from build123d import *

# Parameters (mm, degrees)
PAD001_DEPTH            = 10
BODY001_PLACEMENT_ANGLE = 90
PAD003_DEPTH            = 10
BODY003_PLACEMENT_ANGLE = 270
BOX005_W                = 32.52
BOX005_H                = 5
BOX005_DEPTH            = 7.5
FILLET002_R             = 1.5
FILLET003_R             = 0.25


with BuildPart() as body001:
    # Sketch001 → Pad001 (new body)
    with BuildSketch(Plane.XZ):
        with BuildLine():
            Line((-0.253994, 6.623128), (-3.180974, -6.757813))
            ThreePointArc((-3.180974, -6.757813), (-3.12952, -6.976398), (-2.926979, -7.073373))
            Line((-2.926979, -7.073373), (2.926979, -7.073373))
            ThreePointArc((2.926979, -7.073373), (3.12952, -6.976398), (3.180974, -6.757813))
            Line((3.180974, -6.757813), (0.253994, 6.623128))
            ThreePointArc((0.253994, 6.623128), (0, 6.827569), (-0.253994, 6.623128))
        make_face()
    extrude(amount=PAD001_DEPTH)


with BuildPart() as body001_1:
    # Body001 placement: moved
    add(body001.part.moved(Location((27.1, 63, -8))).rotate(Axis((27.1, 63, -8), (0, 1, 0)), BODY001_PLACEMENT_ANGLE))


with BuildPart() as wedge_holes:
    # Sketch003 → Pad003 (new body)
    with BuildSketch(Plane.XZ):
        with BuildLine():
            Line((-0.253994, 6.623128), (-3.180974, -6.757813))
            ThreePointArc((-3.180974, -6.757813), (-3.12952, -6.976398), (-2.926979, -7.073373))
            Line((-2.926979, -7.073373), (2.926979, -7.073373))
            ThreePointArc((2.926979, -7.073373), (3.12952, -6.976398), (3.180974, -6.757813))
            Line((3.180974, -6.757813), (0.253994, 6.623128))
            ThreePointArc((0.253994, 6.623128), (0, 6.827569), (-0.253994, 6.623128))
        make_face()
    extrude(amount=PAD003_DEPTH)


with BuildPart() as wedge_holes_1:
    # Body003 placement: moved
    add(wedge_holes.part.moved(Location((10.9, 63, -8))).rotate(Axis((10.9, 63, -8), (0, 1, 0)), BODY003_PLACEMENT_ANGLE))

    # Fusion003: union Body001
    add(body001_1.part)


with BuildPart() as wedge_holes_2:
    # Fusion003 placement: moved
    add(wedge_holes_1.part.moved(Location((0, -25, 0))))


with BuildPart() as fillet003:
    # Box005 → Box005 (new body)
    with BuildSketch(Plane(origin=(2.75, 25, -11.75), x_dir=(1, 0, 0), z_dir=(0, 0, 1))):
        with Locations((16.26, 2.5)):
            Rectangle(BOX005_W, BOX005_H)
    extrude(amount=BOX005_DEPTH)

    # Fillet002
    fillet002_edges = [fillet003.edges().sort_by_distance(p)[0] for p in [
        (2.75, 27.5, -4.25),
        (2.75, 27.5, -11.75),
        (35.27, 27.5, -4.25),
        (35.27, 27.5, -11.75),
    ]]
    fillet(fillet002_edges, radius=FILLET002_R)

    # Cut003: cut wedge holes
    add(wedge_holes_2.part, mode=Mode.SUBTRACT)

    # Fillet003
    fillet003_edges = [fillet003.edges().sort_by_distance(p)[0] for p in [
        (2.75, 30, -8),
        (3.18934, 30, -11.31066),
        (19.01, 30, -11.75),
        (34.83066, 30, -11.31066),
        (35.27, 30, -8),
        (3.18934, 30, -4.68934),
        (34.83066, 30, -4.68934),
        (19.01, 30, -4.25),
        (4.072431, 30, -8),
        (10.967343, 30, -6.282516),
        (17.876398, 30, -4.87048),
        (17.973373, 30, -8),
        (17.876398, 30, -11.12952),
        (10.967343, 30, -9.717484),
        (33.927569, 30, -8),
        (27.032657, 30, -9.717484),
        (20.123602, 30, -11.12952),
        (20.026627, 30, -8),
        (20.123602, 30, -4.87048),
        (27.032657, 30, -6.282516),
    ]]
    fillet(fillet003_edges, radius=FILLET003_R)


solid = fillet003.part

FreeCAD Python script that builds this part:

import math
import FreeCAD as App
import Part
import Sketcher

V = App.Vector
Q = App.Units.Quantity


def edges_at(feature, points):
    """Names of the edges that pass closest to the given points."""
    edges = feature.Shape.Edges
    near = lambda p: min(range(len(edges)), key=lambda i: edges[i].distToShape(Part.Vertex(*p))[0])
    return sorted({f"Edge{near(p) + 1}" for p in points})

doc = App.newDocument("Part")
body = doc.addObject("PartDesign::Body", "Body")

# Sketch on XZ plane
sketch1 = body.newObject("Sketcher::SketchObject", "Sketch")
sketch1.AttachmentSupport = (doc.getObject("XZ_Plane"), [""])
sketch1.MapMode = "FlatFace"
sketch1.addGeometry(Part.LineSegment(V(-0.25, 6.62, 0), V(-3.18, -6.76, 0)), False)
sketch1.addGeometry(Part.ArcOfCircle(Part.Circle(V(-2.93, -6.81, 0), V(0, 0, 1), 0.26), math.radians(168), math.radians(270)), False)
sketch1.addGeometry(Part.LineSegment(V(-2.93, -7.07, 0), V(2.93, -7.07, 0)), False)
sketch1.addGeometry(Part.ArcOfCircle(Part.Circle(V(2.93, -6.81, 0), V(0, 0, 1), 0.26), math.radians(-90), math.radians(12)), False)
sketch1.addGeometry(Part.LineSegment(V(3.18, -6.76, 0), V(0.25, 6.62, 0)), False)
sketch1.addGeometry(Part.ArcOfCircle(Part.Circle(V(0, 6.57, 0), V(0, 0, 1), 0.26), math.radians(12), math.radians(168)), False)
sketch1.addConstraint(Sketcher.Constraint("Tangent", 0, 2, 1, 1))
sketch1.addConstraint(Sketcher.Constraint("Tangent", 1, 2, 2, 1))
sketch1.addConstraint(Sketcher.Constraint("Tangent", 2, 2, 3, 1))
sketch1.addConstraint(Sketcher.Constraint("Tangent", 3, 2, 4, 1))
sketch1.addConstraint(Sketcher.Constraint("Coincident", 4, 2, 5, 1))
sketch1.addConstraint(Sketcher.Constraint("Coincident", 5, 2, 0, 1))
sketch1.addConstraint(Sketcher.Constraint("Horizontal", 2))
sketch1.addConstraint(Sketcher.Constraint("Equal", 1, 3))
sketch1.addConstraint(Sketcher.Constraint("Equal", 3, 5))
sketch1.addConstraint(Sketcher.Constraint("Symmetric", 0, 2, 3, 2, -2))
sketch1.addConstraint(Sketcher.Constraint("Horizontal", 4, 2, 5, 2))
sketch1.addConstraint(Sketcher.Constraint("Radius", 1, Q("0.260001 mm")))
sketch1.addConstraint(Sketcher.Constraint("DistanceX", 2, 1, 2, 2, Q("5.853958 mm")))
sketch1.addConstraint(Sketcher.Constraint("DistanceY", 3, 3, 4, 2, Q("13.4365 mm")))
sketch1.addConstraint(Sketcher.Constraint("DistanceY", -1, 1, 5, 3, Q("6.56757 mm")))
sketch1.addConstraint(Sketcher.Constraint("DistanceY", -1, 1, 4, 2, Q("6.623128 mm")))
pad1 = body.newObject("PartDesign::Pad", "Pad")
pad1.Profile = sketch1
pad1.Length = 10
body2 = doc.addObject("PartDesign::Body", "Body001")
doc.recompute()

body.Placement = App.Placement(V(27.1, 63, -8), App.Rotation(V(0, 1, 0), 90))
boolean = body2.newObject("PartDesign::Boolean", "Boolean")
boolean.Type = "Fuse"
boolean.addObjects([body])
body3 = doc.addObject("PartDesign::Body", "Body002")

# Sketch on XZ plane
sketch2 = body3.newObject("Sketcher::SketchObject", "Sketch001")
sketch2.AttachmentSupport = (doc.getObject("XZ_Plane002"), [""])
sketch2.MapMode = "FlatFace"
sketch2.addGeometry(Part.LineSegment(V(-0.25, 6.62, 0), V(-3.18, -6.76, 0)), False)
sketch2.addGeometry(Part.ArcOfCircle(Part.Circle(V(-2.93, -6.81, 0), V(0, 0, 1), 0.26), math.radians(168), math.radians(270)), False)
sketch2.addGeometry(Part.LineSegment(V(-2.93, -7.07, 0), V(2.93, -7.07, 0)), False)
sketch2.addGeometry(Part.ArcOfCircle(Part.Circle(V(2.93, -6.81, 0), V(0, 0, 1), 0.26), math.radians(-90), math.radians(12)), False)
sketch2.addGeometry(Part.LineSegment(V(3.18, -6.76, 0), V(0.25, 6.62, 0)), False)
sketch2.addGeometry(Part.ArcOfCircle(Part.Circle(V(0, 6.57, 0), V(0, 0, 1), 0.26), math.radians(12), math.radians(168)), False)
sketch2.addConstraint(Sketcher.Constraint("Tangent", 0, 2, 1, 1))
sketch2.addConstraint(Sketcher.Constraint("Tangent", 1, 2, 2, 1))
sketch2.addConstraint(Sketcher.Constraint("Tangent", 2, 2, 3, 1))
sketch2.addConstraint(Sketcher.Constraint("Tangent", 3, 2, 4, 1))
sketch2.addConstraint(Sketcher.Constraint("Coincident", 4, 2, 5, 1))
sketch2.addConstraint(Sketcher.Constraint("Coincident", 5, 2, 0, 1))
sketch2.addConstraint(Sketcher.Constraint("Horizontal", 2))
sketch2.addConstraint(Sketcher.Constraint("Equal", 1, 3))
sketch2.addConstraint(Sketcher.Constraint("Equal", 3, 5))
sketch2.addConstraint(Sketcher.Constraint("Symmetric", 0, 2, 3, 2, -2))
sketch2.addConstraint(Sketcher.Constraint("Horizontal", 4, 2, 5, 2))
sketch2.addConstraint(Sketcher.Constraint("Radius", 1, Q("0.260001 mm")))
sketch2.addConstraint(Sketcher.Constraint("DistanceX", 2, 1, 2, 2, Q("5.853958 mm")))
sketch2.addConstraint(Sketcher.Constraint("DistanceY", 3, 3, 4, 2, Q("13.4365 mm")))
sketch2.addConstraint(Sketcher.Constraint("DistanceY", -1, 1, 5, 3, Q("6.56757 mm")))
sketch2.addConstraint(Sketcher.Constraint("DistanceY", -1, 1, 4, 2, Q("6.623128 mm")))
pad2 = body3.newObject("PartDesign::Pad", "Pad001")
pad2.Profile = sketch2
pad2.Length = 10
body4 = doc.addObject("PartDesign::Body", "Body003")
body4.AllowCompound = True
doc.recompute()

body3.Placement = App.Placement(V(10.9, 63, -8), App.Rotation(V(0, 1, 0), 270))
boolean2 = body4.newObject("PartDesign::Boolean", "Boolean001")
boolean2.Type = "Fuse"
boolean2.addObjects([body3])
doc.recompute()

boolean3 = body4.newObject("PartDesign::Boolean", "Boolean002")
boolean3.Type = "Fuse"
boolean3.addObjects([body2])
body5 = doc.addObject("PartDesign::Body", "Body004")
body5.AllowCompound = True
doc.recompute()

body4.Placement = App.Placement(V(0, -25, 0), App.Rotation(V(0, 0, 1), 0))
boolean4 = body5.newObject("PartDesign::Boolean", "Boolean003")
boolean4.Type = "Fuse"
boolean4.addObjects([body4])
body6 = doc.addObject("PartDesign::Body", "Body005")

# Sketch on XY plane
sketch3 = body6.newObject("Sketcher::SketchObject", "Sketch002")
sketch3.AttachmentSupport = (doc.getObject("XY_Plane005"), [""])
sketch3.MapMode = "FlatFace"
sketch3.AttachmentOffset = App.Placement(V(0, 0, -11.75), App.Rotation())
sketch3.addGeometry(Part.LineSegment(V(3, 30, 0), V(3, 25, 0)), False)
sketch3.addGeometry(Part.LineSegment(V(3, 25, 0), V(35, 25, 0)), False)
sketch3.addGeometry(Part.LineSegment(V(35, 25, 0), V(35, 30, 0)), False)
sketch3.addGeometry(Part.LineSegment(V(35, 30, 0), V(3, 30, 0)), False)
sketch3.addConstraint(Sketcher.Constraint("Coincident", 0, 2, 1, 1))
sketch3.addConstraint(Sketcher.Constraint("Coincident", 1, 2, 2, 1))
sketch3.addConstraint(Sketcher.Constraint("Coincident", 2, 2, 3, 1))
sketch3.addConstraint(Sketcher.Constraint("Coincident", 3, 2, 0, 1))
sketch3.addConstraint(Sketcher.Constraint("Vertical", 0))
sketch3.addConstraint(Sketcher.Constraint("Horizontal", 1))
sketch3.addConstraint(Sketcher.Constraint("Vertical", 2))
sketch3.addConstraint(Sketcher.Constraint("Horizontal", 3))
sketch3.addConstraint(Sketcher.Constraint("DistanceY", 0, 2, 0, 1, Q("5 mm")))
sketch3.addConstraint(Sketcher.Constraint("DistanceY", -1, 1, 0, 2, Q("25 mm")))
sketch3.addConstraint(Sketcher.Constraint("DistanceX", 1, 1, 1, 2, Q("32.52 mm")))
sketch3.addConstraint(Sketcher.Constraint("DistanceX", -1, 1, 0, 2, Q("2.75 mm")))
pad3 = body6.newObject("PartDesign::Pad", "Pad002")
pad3.Profile = sketch3
pad3.Length = 7.5
doc.recompute()

fillet = body6.newObject("PartDesign::Fillet", "Fillet")
fillet.Base = (pad3, edges_at(pad3, [
    (2.75, 27.5, -4.25),
    (2.75, 27.5, -11.75),
    (35.27, 27.5, -4.25),
    (35.27, 27.5, -11.75),
]))
fillet.Radius = 1.5
doc.recompute()

boolean5 = body6.newObject("PartDesign::Boolean", "Boolean004")
boolean5.Type = "Cut"
boolean5.addObjects([body5])
doc.recompute()

fillet2 = body6.newObject("PartDesign::Fillet", "Fillet001")
fillet2.Base = (boolean5, edges_at(boolean5, [
    (2.75, 30, -8),
    (3.189, 30, -11.311),
    (19.01, 30, -11.75),
    (34.831, 30, -11.311),
    (35.27, 30, -8),
    (3.189, 30, -4.689),
    (34.831, 30, -4.689),
    (19.01, 30, -4.25),
    (4.072, 30, -8),
    (10.967, 30, -6.283),
    (17.876, 30, -4.87),
    (17.973, 30, -8),
    (17.876, 30, -11.13),
    (10.967, 30, -9.717),
    (33.928, 30, -8),
    (27.033, 30, -9.717),
    (20.124, 30, -11.13),
    (20.027, 30, -8),
    (20.124, 30, -4.87),
    (27.033, 30, -6.283),
]))
fillet2.Radius = 0.25

doc.recompute()
